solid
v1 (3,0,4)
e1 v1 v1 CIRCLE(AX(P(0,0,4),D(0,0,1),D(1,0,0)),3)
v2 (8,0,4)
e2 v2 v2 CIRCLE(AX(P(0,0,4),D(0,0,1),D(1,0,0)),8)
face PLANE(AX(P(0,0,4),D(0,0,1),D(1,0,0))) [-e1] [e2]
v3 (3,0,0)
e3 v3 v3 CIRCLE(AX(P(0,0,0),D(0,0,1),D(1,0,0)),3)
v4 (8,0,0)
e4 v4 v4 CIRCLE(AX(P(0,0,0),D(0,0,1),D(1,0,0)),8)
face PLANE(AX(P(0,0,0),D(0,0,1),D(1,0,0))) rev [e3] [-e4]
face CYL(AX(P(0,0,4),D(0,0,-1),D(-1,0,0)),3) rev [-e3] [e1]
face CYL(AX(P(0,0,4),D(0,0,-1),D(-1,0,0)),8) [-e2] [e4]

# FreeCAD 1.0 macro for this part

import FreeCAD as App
import Part
import Sketcher
Q = App.Units.Quantity

doc = App.newDocument("Part")
body = doc.addObject("PartDesign::Body", "Body")

sketch1 = body.newObject("Sketcher::SketchObject", "Sketch")
sketch1.AttachmentSupport = (doc.getObject("XY_Plane"), [""])
sketch1.MapMode = "FlatFace"
sketch1.addGeometry([
    Part.Circle(App.Vector(0, 0, 0), App.Vector(0, 0, 1), 8),
    Part.Circle(App.Vector(0, 0, 0), App.Vector(0, 0, 1), 3),
], False)
sketch1.addConstraint([
    Sketcher.Constraint("Coincident", 0, 3, -1, 1),
    Sketcher.Constraint("Coincident", 1, 3, -1, 1),
    Sketcher.Constraint("Diameter", 0, Q("16 mm")),
    Sketcher.Constraint("Diameter", 1, Q("6 mm")),
])
pad1 = body.newObject("PartDesign::Pad", "Pad")
pad1.Profile = sketch1
pad1.Length = 4

doc.recompute()
